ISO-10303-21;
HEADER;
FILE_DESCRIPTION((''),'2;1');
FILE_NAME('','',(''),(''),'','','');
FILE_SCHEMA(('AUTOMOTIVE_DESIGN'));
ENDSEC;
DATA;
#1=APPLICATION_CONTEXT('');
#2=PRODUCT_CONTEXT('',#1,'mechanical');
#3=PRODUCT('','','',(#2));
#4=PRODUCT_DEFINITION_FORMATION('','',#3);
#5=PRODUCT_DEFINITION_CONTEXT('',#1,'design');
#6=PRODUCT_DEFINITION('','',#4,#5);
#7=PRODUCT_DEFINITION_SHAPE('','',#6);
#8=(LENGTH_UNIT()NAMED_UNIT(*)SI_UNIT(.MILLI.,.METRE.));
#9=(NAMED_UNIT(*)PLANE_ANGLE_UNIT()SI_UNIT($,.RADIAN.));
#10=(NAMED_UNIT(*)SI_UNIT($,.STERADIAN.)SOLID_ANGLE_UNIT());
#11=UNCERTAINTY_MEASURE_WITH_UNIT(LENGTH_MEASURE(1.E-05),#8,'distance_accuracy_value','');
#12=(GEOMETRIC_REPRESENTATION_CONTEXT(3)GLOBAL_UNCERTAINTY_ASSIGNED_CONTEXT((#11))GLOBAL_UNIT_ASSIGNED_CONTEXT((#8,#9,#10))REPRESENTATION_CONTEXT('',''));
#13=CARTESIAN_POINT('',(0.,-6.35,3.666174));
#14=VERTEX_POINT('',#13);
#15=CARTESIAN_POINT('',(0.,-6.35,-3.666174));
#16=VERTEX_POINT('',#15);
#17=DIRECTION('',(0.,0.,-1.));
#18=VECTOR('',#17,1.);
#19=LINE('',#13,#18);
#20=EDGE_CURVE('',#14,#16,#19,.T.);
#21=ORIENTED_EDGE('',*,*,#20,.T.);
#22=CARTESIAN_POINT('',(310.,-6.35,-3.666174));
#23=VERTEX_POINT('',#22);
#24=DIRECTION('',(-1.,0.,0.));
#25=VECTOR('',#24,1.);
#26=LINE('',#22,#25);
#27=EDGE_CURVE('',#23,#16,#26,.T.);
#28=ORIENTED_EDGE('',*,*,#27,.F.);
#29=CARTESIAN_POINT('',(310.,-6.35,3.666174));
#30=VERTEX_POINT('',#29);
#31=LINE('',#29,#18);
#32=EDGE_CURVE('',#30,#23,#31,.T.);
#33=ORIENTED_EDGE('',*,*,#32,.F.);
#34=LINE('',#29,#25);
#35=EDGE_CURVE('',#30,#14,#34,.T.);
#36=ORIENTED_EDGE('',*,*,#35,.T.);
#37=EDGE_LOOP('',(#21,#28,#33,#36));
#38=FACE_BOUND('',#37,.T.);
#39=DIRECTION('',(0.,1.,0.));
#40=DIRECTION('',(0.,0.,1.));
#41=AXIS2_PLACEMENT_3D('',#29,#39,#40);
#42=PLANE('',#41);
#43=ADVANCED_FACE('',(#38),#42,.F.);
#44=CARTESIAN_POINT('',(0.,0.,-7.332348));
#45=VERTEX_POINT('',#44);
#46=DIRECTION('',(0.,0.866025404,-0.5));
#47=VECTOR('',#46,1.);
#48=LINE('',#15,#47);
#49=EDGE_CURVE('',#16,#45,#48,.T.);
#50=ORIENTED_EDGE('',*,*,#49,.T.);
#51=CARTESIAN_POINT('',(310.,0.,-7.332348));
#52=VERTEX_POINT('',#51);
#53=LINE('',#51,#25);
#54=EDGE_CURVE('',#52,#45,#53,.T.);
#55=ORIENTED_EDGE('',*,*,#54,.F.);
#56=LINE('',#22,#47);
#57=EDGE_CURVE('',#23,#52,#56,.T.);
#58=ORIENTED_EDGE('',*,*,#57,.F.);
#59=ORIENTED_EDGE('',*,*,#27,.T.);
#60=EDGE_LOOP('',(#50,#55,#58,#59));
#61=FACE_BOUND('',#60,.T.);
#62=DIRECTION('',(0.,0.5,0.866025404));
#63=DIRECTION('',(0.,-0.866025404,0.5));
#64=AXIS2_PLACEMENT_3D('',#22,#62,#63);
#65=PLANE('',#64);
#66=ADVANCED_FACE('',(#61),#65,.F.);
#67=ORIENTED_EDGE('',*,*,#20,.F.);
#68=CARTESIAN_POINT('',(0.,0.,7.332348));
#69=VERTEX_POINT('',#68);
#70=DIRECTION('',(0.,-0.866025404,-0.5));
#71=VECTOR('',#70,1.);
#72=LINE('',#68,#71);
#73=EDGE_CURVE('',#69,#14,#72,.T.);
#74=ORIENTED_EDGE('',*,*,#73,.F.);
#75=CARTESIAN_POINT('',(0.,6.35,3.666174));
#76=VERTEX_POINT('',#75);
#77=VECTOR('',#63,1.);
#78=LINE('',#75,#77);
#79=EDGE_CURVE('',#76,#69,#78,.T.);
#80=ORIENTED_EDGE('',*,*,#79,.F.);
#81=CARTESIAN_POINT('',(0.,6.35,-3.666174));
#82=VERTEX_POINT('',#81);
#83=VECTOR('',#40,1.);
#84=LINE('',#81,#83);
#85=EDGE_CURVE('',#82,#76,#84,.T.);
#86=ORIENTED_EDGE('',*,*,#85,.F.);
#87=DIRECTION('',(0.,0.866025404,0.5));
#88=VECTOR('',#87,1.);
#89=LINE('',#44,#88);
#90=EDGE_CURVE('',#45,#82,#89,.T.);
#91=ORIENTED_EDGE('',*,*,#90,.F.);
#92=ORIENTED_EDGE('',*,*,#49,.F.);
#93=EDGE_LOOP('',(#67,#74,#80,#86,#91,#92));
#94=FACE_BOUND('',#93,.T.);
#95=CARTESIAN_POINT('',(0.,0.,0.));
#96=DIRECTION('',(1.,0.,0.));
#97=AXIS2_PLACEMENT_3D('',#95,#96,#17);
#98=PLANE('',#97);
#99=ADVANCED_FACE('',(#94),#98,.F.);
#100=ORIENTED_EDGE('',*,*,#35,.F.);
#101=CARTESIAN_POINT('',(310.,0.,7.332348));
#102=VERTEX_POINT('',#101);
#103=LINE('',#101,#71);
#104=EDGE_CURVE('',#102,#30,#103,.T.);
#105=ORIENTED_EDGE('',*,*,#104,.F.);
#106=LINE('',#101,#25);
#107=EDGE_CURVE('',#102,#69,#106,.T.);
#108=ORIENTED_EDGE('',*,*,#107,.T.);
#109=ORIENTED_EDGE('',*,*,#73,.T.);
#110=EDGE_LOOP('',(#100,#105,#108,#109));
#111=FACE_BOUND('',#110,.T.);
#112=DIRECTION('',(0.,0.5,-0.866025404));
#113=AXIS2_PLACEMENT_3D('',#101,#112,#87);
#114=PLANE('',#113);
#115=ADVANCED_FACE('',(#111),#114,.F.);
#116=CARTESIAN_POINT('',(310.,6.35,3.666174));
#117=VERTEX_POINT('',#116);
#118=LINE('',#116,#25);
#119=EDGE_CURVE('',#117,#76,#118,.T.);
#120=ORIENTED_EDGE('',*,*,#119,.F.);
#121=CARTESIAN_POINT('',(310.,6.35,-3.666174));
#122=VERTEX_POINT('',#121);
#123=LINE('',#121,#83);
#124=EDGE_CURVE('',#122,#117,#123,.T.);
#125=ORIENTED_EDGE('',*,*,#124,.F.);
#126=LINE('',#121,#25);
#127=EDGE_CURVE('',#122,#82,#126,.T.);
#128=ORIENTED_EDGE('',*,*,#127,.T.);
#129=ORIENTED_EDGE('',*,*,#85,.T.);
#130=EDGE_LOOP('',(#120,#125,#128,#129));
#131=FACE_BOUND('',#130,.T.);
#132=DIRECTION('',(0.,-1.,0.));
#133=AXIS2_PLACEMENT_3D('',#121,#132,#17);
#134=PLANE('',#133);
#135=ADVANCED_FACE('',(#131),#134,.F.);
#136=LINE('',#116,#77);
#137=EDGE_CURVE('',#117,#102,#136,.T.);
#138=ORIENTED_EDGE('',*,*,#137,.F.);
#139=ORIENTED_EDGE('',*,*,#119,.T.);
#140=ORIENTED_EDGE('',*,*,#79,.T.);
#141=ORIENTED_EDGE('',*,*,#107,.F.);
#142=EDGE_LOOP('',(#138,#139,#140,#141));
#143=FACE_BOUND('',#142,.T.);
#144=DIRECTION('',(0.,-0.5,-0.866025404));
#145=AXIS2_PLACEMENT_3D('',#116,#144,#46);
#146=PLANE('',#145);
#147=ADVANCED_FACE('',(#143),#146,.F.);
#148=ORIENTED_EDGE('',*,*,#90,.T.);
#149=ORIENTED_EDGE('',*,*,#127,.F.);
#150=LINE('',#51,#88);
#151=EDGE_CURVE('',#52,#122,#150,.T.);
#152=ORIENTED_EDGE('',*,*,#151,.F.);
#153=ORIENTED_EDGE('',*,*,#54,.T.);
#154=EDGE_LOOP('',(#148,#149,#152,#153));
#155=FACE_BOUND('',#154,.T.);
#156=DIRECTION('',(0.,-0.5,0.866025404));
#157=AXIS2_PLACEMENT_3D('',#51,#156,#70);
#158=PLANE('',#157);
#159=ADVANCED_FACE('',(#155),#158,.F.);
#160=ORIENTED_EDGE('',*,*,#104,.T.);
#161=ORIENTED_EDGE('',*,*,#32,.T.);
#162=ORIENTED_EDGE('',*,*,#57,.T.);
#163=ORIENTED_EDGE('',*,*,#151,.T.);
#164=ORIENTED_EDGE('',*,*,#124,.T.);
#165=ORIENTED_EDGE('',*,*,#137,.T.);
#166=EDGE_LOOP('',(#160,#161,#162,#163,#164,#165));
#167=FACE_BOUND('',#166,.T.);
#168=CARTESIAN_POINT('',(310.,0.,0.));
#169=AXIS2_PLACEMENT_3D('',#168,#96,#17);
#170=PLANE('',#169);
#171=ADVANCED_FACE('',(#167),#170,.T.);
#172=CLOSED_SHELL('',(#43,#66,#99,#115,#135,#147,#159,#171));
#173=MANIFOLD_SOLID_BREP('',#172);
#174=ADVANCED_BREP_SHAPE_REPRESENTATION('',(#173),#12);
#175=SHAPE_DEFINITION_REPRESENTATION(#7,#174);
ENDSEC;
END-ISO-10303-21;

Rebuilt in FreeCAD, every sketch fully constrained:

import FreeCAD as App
import Part
import Sketcher
Q = App.Units.Quantity

doc = App.newDocument("Part")
body = doc.addObject("PartDesign::Body", "Body")

sketch1 = body.newObject("Sketcher::SketchObject", "Sketch")
sketch1.AttachmentSupport = (doc.getObject("YZ_Plane"), [""])
sketch1.MapMode = "FlatFace"
sketch1.addGeometry([
    Part.LineSegment(App.Vector(0, -7, 0), App.Vector(6, -4, 0)),
    Part.LineSegment(App.Vector(6, -4, 0), App.Vector(6, 4, 0)),
    Part.LineSegment(App.Vector(6, 4, 0), App.Vector(0, 7, 0)),
    Part.LineSegment(App.Vector(0, 7, 0), App.Vector(-6, 4, 0)),
    Part.LineSegment(App.Vector(-6, 4, 0), App.Vector(-6, -4, 0)),
    Part.LineSegment(App.Vector(-6, -4, 0), App.Vector(0, -7, 0)),
], False)
sketch1.addConstraint([
    Sketcher.Constraint("Coincident", 0, 2, 1, 1),
    Sketcher.Constraint("Coincident", 1, 2, 2, 1),
    Sketcher.Constraint("Coincident", 2, 2, 3, 1),
    Sketcher.Constraint("Coincident", 3, 2, 4, 1),
    Sketcher.Constraint("Coincident", 4, 2, 5, 1),
    Sketcher.Constraint("Coincident", 5, 2, 0, 1),
    Sketcher.Constraint("Vertical", 1),
    Sketcher.Constraint("Vertical", 4),
    Sketcher.Constraint("Symmetric", 0, 2, 3, 2, -1, 1),
    Sketcher.Constraint("Symmetric", 2, 2, 5, 2, -1, 1),
    Sketcher.Constraint("PointOnObject", 2, 2, -2),
    Sketcher.Constraint("Parallel", 2, 5),
    Sketcher.Constraint("Horizontal", 1, 2, 3, 2),
    Sketcher.Constraint("Angle", 0, Q("30 deg")),
    Sketcher.Constraint("DistanceX", 3, 2, 1, 2, Q("12.7 mm")),
    Sketcher.Constraint("DistanceY", 1, 1, 1, 2, Q("7.332348 mm")),
])
pad1 = body.newObject("PartDesign::Pad", "Pad")
pad1.Profile = sketch1
pad1.Length = 310

doc.recompute()
